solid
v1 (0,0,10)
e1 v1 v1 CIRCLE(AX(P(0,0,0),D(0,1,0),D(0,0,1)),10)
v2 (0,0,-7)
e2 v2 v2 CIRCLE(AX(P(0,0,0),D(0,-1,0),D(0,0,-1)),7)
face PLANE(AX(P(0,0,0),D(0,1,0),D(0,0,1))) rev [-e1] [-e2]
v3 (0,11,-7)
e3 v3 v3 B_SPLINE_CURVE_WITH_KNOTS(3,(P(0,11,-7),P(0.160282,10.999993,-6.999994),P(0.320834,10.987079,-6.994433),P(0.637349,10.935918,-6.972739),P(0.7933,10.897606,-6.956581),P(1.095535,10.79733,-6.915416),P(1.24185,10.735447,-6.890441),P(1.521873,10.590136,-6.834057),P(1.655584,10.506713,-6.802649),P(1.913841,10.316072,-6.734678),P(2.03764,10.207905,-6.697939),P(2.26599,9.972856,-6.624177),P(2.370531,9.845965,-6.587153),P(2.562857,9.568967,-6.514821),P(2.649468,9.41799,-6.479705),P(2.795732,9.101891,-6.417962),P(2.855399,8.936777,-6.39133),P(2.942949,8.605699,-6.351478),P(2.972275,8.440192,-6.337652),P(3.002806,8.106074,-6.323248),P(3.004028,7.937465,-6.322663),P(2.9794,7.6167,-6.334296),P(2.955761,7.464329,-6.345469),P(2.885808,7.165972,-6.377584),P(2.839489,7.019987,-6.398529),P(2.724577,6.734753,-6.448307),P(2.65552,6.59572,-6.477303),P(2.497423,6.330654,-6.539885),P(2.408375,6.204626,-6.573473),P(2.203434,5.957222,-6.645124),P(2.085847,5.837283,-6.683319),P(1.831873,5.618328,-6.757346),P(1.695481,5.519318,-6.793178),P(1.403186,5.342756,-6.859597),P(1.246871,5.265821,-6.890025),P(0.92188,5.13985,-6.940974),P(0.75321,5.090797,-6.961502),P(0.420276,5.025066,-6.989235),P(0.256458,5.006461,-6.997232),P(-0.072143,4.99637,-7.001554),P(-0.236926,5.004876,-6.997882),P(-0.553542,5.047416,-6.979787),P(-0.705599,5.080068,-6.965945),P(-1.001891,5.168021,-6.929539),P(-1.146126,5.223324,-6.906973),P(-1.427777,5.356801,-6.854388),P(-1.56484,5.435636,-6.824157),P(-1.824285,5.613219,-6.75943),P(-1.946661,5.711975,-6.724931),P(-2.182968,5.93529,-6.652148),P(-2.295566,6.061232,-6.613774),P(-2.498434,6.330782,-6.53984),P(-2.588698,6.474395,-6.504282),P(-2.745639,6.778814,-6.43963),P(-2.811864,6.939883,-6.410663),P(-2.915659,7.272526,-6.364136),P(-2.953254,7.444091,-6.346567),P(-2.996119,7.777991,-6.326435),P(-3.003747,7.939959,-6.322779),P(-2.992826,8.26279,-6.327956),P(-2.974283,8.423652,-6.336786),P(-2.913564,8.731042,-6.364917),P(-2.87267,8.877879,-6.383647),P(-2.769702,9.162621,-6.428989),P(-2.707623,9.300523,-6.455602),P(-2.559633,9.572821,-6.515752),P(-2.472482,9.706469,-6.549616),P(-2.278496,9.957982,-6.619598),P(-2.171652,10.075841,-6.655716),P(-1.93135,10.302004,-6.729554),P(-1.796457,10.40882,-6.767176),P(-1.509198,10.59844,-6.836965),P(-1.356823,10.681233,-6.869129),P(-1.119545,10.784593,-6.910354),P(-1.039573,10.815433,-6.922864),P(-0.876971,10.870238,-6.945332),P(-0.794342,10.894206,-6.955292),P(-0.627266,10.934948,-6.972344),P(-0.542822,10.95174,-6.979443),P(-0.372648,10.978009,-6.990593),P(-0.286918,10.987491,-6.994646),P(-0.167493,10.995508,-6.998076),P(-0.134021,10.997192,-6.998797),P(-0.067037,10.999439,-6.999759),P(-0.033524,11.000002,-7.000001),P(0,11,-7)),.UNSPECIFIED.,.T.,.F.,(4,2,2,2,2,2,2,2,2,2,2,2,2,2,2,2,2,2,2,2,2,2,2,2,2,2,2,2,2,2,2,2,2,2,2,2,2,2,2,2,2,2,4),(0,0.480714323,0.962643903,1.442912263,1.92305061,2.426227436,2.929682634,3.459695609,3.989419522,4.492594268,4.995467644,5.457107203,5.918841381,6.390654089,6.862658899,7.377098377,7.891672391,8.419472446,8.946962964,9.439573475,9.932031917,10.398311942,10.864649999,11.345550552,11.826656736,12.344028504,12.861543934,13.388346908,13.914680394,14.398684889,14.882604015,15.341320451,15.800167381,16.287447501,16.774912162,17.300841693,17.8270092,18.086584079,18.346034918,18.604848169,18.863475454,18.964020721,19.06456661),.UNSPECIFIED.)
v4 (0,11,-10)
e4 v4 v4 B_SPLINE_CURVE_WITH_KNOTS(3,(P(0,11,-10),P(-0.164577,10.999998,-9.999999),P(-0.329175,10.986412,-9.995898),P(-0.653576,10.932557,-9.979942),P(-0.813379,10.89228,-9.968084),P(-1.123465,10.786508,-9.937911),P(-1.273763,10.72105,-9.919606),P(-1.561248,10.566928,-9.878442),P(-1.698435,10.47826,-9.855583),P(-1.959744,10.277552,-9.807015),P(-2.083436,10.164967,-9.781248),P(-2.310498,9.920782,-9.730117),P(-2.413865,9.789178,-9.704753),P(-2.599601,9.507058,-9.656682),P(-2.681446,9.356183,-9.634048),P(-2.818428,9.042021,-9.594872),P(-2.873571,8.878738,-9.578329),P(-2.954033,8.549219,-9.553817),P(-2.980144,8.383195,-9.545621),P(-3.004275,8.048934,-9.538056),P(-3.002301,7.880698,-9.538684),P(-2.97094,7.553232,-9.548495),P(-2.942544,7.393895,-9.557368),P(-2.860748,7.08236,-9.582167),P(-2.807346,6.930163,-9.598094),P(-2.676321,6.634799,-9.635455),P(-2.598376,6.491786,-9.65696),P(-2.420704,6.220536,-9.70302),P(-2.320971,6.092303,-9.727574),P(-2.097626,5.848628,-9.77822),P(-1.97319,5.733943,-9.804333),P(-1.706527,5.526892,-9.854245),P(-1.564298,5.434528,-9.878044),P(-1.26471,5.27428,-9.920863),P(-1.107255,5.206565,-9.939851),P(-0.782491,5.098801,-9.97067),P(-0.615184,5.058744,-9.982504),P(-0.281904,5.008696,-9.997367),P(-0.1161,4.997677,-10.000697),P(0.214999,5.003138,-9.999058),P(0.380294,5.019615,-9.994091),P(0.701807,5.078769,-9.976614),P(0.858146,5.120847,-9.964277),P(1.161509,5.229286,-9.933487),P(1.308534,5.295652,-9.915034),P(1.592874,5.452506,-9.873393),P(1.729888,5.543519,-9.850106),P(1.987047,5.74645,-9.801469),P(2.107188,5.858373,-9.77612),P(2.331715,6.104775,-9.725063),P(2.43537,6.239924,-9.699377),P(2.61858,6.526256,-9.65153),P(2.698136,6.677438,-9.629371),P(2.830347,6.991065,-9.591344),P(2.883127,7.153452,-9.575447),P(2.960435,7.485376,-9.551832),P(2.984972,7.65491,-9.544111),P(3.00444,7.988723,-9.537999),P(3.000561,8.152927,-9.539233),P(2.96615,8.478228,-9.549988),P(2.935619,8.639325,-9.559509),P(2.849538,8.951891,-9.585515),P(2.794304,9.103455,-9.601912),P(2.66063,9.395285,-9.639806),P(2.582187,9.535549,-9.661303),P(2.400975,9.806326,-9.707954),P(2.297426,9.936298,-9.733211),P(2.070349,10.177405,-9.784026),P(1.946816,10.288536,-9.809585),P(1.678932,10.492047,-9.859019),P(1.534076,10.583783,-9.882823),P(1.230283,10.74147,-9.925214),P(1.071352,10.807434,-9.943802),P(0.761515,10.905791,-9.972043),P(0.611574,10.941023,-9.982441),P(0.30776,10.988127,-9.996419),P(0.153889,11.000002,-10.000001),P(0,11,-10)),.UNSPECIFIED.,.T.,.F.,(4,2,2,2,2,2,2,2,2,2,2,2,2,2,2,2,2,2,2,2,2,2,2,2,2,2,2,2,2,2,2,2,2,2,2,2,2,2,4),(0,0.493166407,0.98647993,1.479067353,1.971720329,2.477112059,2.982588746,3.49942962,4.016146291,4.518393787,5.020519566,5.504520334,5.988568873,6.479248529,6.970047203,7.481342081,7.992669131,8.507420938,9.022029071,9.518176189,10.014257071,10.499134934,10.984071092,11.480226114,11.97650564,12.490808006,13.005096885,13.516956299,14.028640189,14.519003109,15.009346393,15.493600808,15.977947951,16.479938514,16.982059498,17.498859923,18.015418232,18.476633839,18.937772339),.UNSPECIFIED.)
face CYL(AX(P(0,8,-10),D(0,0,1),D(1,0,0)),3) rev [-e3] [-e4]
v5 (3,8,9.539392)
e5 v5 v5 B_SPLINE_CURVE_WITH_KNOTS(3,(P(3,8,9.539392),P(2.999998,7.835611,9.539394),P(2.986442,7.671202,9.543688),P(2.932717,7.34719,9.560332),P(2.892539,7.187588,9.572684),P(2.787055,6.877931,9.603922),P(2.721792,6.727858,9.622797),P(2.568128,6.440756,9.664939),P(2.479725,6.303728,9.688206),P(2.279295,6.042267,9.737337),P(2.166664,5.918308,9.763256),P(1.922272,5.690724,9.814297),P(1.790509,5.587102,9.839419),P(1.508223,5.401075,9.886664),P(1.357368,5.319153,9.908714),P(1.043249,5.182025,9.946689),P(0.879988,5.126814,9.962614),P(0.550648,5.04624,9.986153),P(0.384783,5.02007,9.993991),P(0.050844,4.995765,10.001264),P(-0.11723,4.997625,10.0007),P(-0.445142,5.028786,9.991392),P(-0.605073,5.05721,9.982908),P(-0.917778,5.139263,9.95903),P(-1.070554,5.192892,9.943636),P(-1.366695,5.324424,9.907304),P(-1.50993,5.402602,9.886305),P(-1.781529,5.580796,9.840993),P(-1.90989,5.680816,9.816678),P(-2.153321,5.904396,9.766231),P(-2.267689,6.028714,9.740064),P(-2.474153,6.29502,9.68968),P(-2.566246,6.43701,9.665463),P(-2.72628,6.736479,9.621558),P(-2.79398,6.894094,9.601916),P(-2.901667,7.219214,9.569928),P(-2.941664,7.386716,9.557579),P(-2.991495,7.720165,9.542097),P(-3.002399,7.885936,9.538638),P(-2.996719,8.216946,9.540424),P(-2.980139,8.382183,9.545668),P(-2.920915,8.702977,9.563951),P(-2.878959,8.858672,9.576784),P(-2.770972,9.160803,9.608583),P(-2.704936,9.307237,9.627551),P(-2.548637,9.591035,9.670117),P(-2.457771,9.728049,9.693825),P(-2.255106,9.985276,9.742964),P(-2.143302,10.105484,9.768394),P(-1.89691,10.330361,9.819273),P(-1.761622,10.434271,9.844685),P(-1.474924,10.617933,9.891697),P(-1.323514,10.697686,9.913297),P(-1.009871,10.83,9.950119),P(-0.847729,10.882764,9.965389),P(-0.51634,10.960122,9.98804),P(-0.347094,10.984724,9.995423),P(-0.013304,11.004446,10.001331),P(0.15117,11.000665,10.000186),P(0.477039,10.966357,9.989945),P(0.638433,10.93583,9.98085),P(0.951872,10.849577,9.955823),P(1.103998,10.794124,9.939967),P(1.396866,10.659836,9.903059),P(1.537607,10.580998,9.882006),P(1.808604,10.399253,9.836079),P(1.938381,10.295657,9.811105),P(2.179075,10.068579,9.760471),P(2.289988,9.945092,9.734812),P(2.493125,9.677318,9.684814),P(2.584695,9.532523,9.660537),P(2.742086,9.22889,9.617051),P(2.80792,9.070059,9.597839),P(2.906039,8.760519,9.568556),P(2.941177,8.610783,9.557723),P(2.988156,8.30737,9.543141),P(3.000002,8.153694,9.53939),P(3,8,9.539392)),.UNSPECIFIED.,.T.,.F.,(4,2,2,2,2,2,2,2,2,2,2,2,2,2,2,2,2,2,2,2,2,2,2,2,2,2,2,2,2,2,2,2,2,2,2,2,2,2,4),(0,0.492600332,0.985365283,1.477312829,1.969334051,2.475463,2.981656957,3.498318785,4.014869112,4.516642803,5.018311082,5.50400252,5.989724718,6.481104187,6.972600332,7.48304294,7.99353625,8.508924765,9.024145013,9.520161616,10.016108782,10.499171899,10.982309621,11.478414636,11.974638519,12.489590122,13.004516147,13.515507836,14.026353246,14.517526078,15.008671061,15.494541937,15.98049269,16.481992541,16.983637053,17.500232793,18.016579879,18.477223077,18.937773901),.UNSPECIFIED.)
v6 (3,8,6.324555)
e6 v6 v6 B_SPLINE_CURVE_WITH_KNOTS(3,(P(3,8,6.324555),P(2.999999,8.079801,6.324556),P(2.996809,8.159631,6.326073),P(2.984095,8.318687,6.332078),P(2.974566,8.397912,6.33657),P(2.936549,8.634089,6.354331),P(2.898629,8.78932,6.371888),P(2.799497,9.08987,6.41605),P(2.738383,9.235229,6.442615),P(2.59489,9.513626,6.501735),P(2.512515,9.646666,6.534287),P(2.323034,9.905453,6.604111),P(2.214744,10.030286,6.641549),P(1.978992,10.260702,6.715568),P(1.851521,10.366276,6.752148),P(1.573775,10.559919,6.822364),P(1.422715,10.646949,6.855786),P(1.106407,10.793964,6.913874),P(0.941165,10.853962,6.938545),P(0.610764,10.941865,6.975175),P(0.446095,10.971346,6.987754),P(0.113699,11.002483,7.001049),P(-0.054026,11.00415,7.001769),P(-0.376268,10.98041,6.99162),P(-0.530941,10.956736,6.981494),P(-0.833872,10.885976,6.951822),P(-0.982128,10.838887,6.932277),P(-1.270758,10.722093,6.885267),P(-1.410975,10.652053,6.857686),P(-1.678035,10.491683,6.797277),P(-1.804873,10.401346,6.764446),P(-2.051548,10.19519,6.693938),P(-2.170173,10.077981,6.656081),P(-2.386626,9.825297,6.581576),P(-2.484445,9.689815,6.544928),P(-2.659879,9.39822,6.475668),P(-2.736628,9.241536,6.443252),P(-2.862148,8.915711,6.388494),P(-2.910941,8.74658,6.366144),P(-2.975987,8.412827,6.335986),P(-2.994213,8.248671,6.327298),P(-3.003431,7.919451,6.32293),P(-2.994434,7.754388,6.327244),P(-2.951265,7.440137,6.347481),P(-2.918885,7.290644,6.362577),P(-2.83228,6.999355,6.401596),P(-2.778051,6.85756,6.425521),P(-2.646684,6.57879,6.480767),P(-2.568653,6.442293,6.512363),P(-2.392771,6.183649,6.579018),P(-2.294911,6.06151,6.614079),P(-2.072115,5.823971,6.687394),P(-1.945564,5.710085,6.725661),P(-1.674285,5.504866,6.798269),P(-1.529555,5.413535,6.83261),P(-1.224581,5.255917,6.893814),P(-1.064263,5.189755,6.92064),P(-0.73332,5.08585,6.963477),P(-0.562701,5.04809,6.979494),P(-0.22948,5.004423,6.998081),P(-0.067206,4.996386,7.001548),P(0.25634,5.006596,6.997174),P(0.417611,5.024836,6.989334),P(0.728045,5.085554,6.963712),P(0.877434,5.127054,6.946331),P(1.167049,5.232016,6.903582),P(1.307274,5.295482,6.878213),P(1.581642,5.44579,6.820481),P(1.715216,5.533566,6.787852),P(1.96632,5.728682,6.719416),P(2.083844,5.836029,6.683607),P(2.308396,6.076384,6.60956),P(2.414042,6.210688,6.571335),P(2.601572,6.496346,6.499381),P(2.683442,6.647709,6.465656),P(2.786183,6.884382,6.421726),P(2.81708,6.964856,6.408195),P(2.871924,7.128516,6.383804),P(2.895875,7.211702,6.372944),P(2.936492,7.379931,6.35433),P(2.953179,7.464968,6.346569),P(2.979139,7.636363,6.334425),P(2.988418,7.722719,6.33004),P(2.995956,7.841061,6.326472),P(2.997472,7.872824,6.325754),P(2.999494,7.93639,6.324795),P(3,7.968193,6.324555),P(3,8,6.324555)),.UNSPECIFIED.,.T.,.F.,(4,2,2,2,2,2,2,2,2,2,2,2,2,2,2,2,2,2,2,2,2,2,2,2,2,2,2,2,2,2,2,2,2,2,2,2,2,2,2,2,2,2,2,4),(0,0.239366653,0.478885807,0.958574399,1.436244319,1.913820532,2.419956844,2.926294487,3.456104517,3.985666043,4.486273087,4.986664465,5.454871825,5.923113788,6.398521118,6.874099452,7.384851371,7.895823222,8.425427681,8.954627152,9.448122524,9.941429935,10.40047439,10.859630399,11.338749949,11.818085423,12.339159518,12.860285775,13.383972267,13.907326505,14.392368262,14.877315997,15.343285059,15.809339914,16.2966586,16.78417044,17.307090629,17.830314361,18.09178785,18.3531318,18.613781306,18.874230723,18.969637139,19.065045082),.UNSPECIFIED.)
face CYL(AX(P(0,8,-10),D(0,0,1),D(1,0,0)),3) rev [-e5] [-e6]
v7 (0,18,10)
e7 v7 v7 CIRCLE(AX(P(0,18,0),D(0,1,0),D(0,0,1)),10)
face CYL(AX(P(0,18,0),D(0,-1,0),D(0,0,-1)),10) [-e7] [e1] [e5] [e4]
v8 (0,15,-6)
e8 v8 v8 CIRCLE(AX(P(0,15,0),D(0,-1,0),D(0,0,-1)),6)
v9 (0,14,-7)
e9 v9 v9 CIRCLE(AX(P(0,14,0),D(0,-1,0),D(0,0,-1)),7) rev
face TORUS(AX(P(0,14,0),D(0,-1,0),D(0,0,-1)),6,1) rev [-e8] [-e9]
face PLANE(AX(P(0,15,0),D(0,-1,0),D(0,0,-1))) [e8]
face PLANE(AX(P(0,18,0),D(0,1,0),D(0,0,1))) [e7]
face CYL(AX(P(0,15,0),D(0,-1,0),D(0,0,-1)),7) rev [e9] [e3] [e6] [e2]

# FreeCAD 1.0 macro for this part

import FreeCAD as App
import Part
import Sketcher

V = App.Vector
Q = App.Units.Quantity


def edges_at(feature, points):
    """Names of the edges that pass closest to the given points."""
    edges = feature.Shape.Edges
    near = lambda p: min(range(len(edges)), key=lambda i: edges[i].distToShape(Part.Vertex(*p))[0])
    return sorted({f"Edge{near(p) + 1}" for p in points})

doc = App.newDocument("Part")
body = doc.addObject("PartDesign::Body", "Body")

# Sketch on XZ plane
sketch1 = body.newObject("Sketcher::SketchObject", "Sketch")
sketch1.AttachmentSupport = (doc.getObject("XZ_Plane"), [""])
sketch1.MapMode = "FlatFace"
sketch1.addGeometry(Part.Circle(V(0, 0, 0), V(0, 0, 1), 10), False)
sketch1.addConstraint(Sketcher.Constraint("Coincident", 0, 3, -1, 1))
sketch1.addConstraint(Sketcher.Constraint("Diameter", 0, Q("20 mm")))
pad1 = body.newObject("PartDesign::Pad", "Pad")
pad1.Profile = sketch1
pad1.Length = 18
pad1.Reversed = True

# Sketch on XZ plane
sketch2 = body.newObject("Sketcher::SketchObject", "Sketch001")
sketch2.AttachmentSupport = (doc.getObject("XZ_Plane"), [""])
sketch2.MapMode = "FlatFace"
sketch2.addGeometry(Part.Circle(V(0, 0, 0), V(0, 0, 1), 7), False)
sketch2.addConstraint(Sketcher.Constraint("Coincident", 0, 3, -1, 1))
sketch2.addConstraint(Sketcher.Constraint("Diameter", 0, Q("14 mm")))
pocket1 = body.newObject("PartDesign::Pocket", "Pocket")
pocket1.Profile = sketch2
pocket1.Length = 15

# Sketch on XY plane
sketch3 = body.newObject("Sketcher::SketchObject", "Sketch002")
sketch3.AttachmentSupport = (doc.getObject("XY_Plane"), [""])
sketch3.MapMode = "FlatFace"
sketch3.addGeometry(Part.Circle(V(0, 8, 0), V(0, 0, 1), 3), False)
sketch3.addConstraint(Sketcher.Constraint("PointOnObject", 0, 3, -2))
sketch3.addConstraint(Sketcher.Constraint("Diameter", 0, Q("6 mm")))
sketch3.addConstraint(Sketcher.Constraint("DistanceY", -1, 1, 0, 3, Q("8 mm")))
pocket2 = body.newObject("PartDesign::Pocket", "Pocket001")
pocket2.Profile = sketch3
pocket2.Type = "ThroughAll"
pocket2.Midplane = True
doc.recompute()

fillet = body.newObject("PartDesign::Fillet", "Fillet")
fillet.Base = (pocket2, edges_at(pocket2, [(0, 15, 7)]))
fillet.Radius = 1

doc.recompute()
